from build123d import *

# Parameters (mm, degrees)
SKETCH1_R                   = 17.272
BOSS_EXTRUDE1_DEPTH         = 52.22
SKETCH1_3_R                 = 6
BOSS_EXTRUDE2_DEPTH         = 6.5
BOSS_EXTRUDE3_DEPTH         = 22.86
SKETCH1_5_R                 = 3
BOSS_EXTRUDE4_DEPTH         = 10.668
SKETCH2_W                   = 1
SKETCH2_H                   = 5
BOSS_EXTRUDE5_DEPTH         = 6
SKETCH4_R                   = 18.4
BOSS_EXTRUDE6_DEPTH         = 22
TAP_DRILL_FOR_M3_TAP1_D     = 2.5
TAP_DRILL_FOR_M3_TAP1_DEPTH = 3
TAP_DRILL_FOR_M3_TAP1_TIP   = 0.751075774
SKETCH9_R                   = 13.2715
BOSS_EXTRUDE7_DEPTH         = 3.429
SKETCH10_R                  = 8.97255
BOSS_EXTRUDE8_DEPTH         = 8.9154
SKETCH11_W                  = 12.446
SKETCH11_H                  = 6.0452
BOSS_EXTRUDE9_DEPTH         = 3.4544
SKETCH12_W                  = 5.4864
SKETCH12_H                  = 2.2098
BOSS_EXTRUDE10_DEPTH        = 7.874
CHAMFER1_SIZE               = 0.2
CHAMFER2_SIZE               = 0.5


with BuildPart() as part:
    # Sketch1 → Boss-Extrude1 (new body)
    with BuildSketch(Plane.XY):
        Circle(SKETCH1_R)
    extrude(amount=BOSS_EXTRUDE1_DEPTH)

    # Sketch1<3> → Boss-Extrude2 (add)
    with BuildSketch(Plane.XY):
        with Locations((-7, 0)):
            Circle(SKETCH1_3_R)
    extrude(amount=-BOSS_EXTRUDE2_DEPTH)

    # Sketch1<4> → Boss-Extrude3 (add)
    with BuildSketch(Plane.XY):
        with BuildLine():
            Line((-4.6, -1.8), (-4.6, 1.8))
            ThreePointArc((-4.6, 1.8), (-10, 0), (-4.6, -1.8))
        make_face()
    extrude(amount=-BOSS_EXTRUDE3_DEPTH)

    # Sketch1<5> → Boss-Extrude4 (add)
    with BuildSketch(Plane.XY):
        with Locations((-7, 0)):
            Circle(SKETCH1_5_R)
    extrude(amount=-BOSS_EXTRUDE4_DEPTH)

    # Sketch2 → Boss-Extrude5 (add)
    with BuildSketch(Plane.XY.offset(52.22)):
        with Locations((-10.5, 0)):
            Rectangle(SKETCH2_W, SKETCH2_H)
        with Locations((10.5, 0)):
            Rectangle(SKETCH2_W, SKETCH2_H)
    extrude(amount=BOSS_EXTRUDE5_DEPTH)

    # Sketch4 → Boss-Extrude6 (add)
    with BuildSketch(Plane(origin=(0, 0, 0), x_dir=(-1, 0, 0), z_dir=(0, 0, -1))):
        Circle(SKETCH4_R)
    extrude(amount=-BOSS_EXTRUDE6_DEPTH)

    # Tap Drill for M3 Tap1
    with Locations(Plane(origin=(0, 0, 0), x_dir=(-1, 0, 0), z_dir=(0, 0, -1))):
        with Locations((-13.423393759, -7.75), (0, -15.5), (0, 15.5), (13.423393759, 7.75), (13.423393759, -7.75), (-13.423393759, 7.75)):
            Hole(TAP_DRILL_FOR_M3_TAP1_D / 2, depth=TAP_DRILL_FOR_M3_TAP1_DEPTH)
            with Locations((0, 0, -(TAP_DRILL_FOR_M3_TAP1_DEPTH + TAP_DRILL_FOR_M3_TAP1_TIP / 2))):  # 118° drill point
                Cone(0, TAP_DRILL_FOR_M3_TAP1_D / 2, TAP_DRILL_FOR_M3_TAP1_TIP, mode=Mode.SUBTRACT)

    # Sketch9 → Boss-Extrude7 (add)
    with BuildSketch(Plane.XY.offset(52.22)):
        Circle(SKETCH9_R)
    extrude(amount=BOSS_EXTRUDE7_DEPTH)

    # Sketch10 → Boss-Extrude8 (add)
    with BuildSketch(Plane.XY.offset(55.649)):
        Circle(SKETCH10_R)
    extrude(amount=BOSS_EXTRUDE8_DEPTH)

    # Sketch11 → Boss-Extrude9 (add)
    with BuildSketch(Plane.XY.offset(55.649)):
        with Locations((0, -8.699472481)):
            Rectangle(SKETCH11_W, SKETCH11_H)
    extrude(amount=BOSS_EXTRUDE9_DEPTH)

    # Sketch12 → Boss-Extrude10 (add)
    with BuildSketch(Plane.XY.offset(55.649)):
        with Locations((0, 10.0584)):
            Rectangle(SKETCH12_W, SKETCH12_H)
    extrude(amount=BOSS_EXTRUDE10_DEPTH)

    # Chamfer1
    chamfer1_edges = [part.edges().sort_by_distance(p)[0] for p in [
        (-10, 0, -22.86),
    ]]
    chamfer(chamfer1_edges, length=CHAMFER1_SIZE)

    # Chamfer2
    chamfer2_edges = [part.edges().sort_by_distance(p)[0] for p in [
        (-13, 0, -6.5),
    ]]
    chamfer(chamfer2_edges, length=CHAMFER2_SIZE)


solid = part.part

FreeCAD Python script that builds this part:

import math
import FreeCAD as App
import Part
import Sketcher
Q = App.Units.Quantity


def edges_at(feature, points):
    """Names of the edges that pass closest to the given points."""
    edges = feature.Shape.Edges
    near = lambda p: min(range(len(edges)), key=lambda i: edges[i].distToShape(Part.Vertex(*p))[0])
    return sorted({f"Edge{near(p) + 1}" for p in points})

doc = App.newDocument("Part")
body = doc.addObject("PartDesign::Body", "Body")

# Sketch on XY plane
sketch1 = body.newObject("Sketcher::SketchObject", "Sketch")
sketch1.AttachmentSupport = (doc.getObject("XY_Plane"), [""])
sketch1.MapMode = "FlatFace"
sketch1.addGeometry(Part.Circle(App.Vector(0, 0, 0), App.Vector(0, 0, 1), 17), False)
sketch1.addConstraint([
    Sketcher.Constraint("Coincident", 0, 3, -1, 1),
    Sketcher.Constraint("Diameter", 0, Q("34.544 mm")),
])
pad1 = body.newObject("PartDesign::Pad", "Pad")
pad1.Profile = sketch1
pad1.Length = 52.22

# Sketch on XY plane
sketch2 = body.newObject("Sketcher::SketchObject", "Sketch001")
sketch2.AttachmentSupport = (doc.getObject("XY_Plane"), [""])
sketch2.MapMode = "FlatFace"
sketch2.addGeometry(Part.Circle(App.Vector(-7, 0, 0), App.Vector(0, 0, 1), 6), False)
sketch2.addConstraint([
    Sketcher.Constraint("PointOnObject", 0, 3, -1),
    Sketcher.Constraint("Diameter", 0, Q("12 mm")),
    Sketcher.Constraint("DistanceX", 0, 3, -1, 1, Q("7 mm")),
])
pad2 = body.newObject("PartDesign::Pad", "Pad001")
pad2.Profile = sketch2
pad2.Length = 6.5
pad2.Reversed = True

# Sketch on XY plane
sketch3 = body.newObject("Sketcher::SketchObject", "Sketch002")
sketch3.AttachmentSupport = (doc.getObject("XY_Plane"), [""])
sketch3.MapMode = "FlatFace"
sketch3.addGeometry([
    Part.LineSegment(App.Vector(-4.6, -1.8, 0), App.Vector(-4.6, 1.8, 0)),
    Part.ArcOfCircle(Part.Circle(App.Vector(-7, 0, 0), App.Vector(0, 0, 1), 3), math.radians(37), math.radians(323)),
], False)
sketch3.addConstraint([
    Sketcher.Constraint("Coincident", 0, 1, 1, 2),
    Sketcher.Constraint("Coincident", 1, 1, 0, 2),
    Sketcher.Constraint("Vertical", 0),
    Sketcher.Constraint("PointOnObject", 1, 3, -1),
    Sketcher.Constraint("Radius", 1, Q("3 mm")),
    Sketcher.Constraint("DistanceY", 0, 1, 0, 2, Q("3.6 mm")),
    Sketcher.Constraint("DistanceX", 1, 3, -1, 1, Q("7 mm")),
])
pad3 = body.newObject("PartDesign::Pad", "Pad002")
pad3.Profile = sketch3
pad3.Length = 22.86
pad3.Reversed = True

# Sketch on XY plane
sketch4 = body.newObject("Sketcher::SketchObject", "Sketch003")
sketch4.AttachmentSupport = (doc.getObject("XY_Plane"), [""])
sketch4.MapMode = "FlatFace"
sketch4.addGeometry(Part.Circle(App.Vector(-7, 0, 0), App.Vector(0, 0, 1), 3), False)
sketch4.addConstraint([
    Sketcher.Constraint("PointOnObject", 0, 3, -1),
    Sketcher.Constraint("Diameter", 0, Q("6 mm")),
    Sketcher.Constraint("DistanceX", 0, 3, -1, 1, Q("7 mm")),
])
pad4 = body.newObject("PartDesign::Pad", "Pad003")
pad4.Profile = sketch4
pad4.Length = 10.668
pad4.Reversed = True

# Sketch on XY plane
sketch5 = body.newObject("Sketcher::SketchObject", "Sketch004")
sketch5.AttachmentSupport = (doc.getObject("XY_Plane"), [""])
sketch5.MapMode = "FlatFace"
sketch5.AttachmentOffset = App.Placement(App.Vector(0, 0, 52.22), App.Rotation())
sketch5.addGeometry([
    Part.LineSegment(App.Vector(-11, 2.5, 0), App.Vector(-11, -2.5, 0)),  # 0
    Part.LineSegment(App.Vector(-11, -2.5, 0), App.Vector(-10, -2.5, 0)),  # 1
    Part.LineSegment(App.Vector(-10, -2.5, 0), App.Vector(-10, 2.5, 0)),  # 2
    Part.LineSegment(App.Vector(-10, 2.5, 0), App.Vector(-11, 2.5, 0)),  # 3
    Part.LineSegment(App.Vector(10, 2.5, 0), App.Vector(10, -2.5, 0)),  # 4
    Part.LineSegment(App.Vector(10, -2.5, 0), App.Vector(11, -2.5, 0)),  # 5
    Part.LineSegment(App.Vector(11, -2.5, 0), App.Vector(11, 2.5, 0)),  # 6
    Part.LineSegment(App.Vector(11, 2.5, 0), App.Vector(10, 2.5, 0)),  # 7
], False)
sketch5.addConstraint([
    Sketcher.Constraint("Coincident", 0, 2, 1, 1),
    Sketcher.Constraint("Coincident", 1, 2, 2, 1),
    Sketcher.Constraint("Coincident", 2, 2, 3, 1),
    Sketcher.Constraint("Coincident", 3, 2, 0, 1),
    Sketcher.Constraint("Coincident", 4, 2, 5, 1),
    Sketcher.Constraint("Coincident", 5, 2, 6, 1),
    Sketcher.Constraint("Coincident", 6, 2, 7, 1),
    Sketcher.Constraint("Coincident", 7, 2, 4, 1),
    Sketcher.Constraint("Vertical", 0),
    Sketcher.Constraint("Horizontal", 1),
    Sketcher.Constraint("Vertical", 2),
    Sketcher.Constraint("Horizontal", 3),
    Sketcher.Constraint("Vertical", 4),
    Sketcher.Constraint("Horizontal", 5),
    Sketcher.Constraint("Vertical", 6),
    Sketcher.Constraint("Horizontal", 7),
    Sketcher.Constraint("Symmetric", 2, 2, 4, 2, -1, 1),
    Sketcher.Constraint("Symmetric", 0, 2, 6, 2, -1, 1),
    Sketcher.Constraint("Horizontal", 1, 2, 4, 2),
    Sketcher.Constraint("DistanceX", 1, 1, 1, 2, Q("1 mm")),
    Sketcher.Constraint("DistanceY", 0, 2, 0, 1, Q("5 mm")),
    Sketcher.Constraint("DistanceX", 0, 2, -1, 1, Q("11 mm")),
])
pad5 = body.newObject("PartDesign::Pad", "Pad004")
pad5.Profile = sketch5
pad5.Length = 6

# Sketch on XY plane
sketch6 = body.newObject("Sketcher::SketchObject", "Sketch005")
sketch6.AttachmentSupport = (doc.getObject("XY_Plane"), [""])
sketch6.MapMode = "FlatFace"
sketch6.addGeometry(Part.Circle(App.Vector(0, 0, 0), App.Vector(0, 0, 1), 18), False)
sketch6.addConstraint([
    Sketcher.Constraint("Coincident", 0, 3, -1, 1),
    Sketcher.Constraint("Diameter", 0, Q("36.8 mm")),
])
pad6 = body.newObject("PartDesign::Pad", "Pad005")
pad6.Profile = sketch6
pad6.Length = 22

# Sketch on XY plane
sketch7 = body.newObject("Sketcher::SketchObject", "Sketch006")
sketch7.AttachmentSupport = (doc.getObject("XY_Plane"), [""])
sketch7.MapMode = "FlatFace"
sketch7.addGeometry([
    Part.Circle(App.Vector(13.4, -7.8, 0), App.Vector(0, 0, 1), 1.2),  # 0
    Part.Circle(App.Vector(0, -15.5, 0), App.Vector(0, 0, 1), 1.2),  # 1
    Part.Circle(App.Vector(0, 15.5, 0), App.Vector(0, 0, 1), 1.2),  # 2
    Part.Circle(App.Vector(-13.4, 7.8, 0), App.Vector(0, 0, 1), 1.2),  # 3
    Part.Circle(App.Vector(-13.4, -7.8, 0), App.Vector(0, 0, 1), 1.2),  # 4
    Part.Circle(App.Vector(13.4, 7.8, 0), App.Vector(0, 0, 1), 1.2),  # 5
], False)
sketch7.addConstraint([
    Sketcher.Constraint("Equal", 0, 1),
    Sketcher.Constraint("Equal", 1, 2),
    Sketcher.Constraint("Equal", 2, 3),
    Sketcher.Constraint("Equal", 3, 4),
    Sketcher.Constraint("Equal", 4, 5),
    Sketcher.Constraint("Symmetric", 1, 3, 2, 3, -1, 1),
    Sketcher.Constraint("Symmetric", 0, 3, 3, 3, -1, 1),
    Sketcher.Constraint("Symmetric", 4, 3, 5, 3, -1, 1),
    Sketcher.Constraint("Symmetric", 0, 3, 4, 3, -2),
    Sketcher.Constraint("PointOnObject", 1, 3, -2),
    Sketcher.Constraint("Diameter", 0, Q("2.5 mm")),
    Sketcher.Constraint("DistanceY", 1, 3, 2, 3, Q("31 mm")),
    Sketcher.Constraint("DistanceY", 0, 3, 3, 3, Q("15.5 mm")),
    Sketcher.Constraint("DistanceX", -1, 1, 0, 3, Q("13.423394 mm")),
])
doc.recompute()
hole = body.newObject("PartDesign::Hole", "Hole")
hole.Profile = sketch7
hole.ThreadType = "None"
hole.Diameter = 2.5
hole.DepthType = "Dimension"
hole.Depth = 3
hole.DrillPoint = "Angled"
hole.DrillPointAngle = 118
hole.Reversed = True

# Sketch on XY plane
sketch8 = body.newObject("Sketcher::SketchObject", "Sketch007")
sketch8.AttachmentSupport = (doc.getObject("XY_Plane"), [""])
sketch8.MapMode = "FlatFace"
sketch8.AttachmentOffset = App.Placement(App.Vector(0, 0, 52.22), App.Rotation())
sketch8.addGeometry(Part.Circle(App.Vector(0, 0, 0), App.Vector(0, 0, 1), 13), False)
sketch8.addConstraint([
    Sketcher.Constraint("Coincident", 0, 3, -1, 1),
    Sketcher.Constraint("Diameter", 0, Q("26.543 mm")),
])
pad7 = body.newObject("PartDesign::Pad", "Pad006")
pad7.Profile = sketch8
pad7.Length = 3.429

# Sketch on XY plane
sketch9 = body.newObject("Sketcher::SketchObject", "Sketch008")
sketch9.AttachmentSupport = (doc.getObject("XY_Plane"), [""])
sketch9.MapMode = "FlatFace"
sketch9.AttachmentOffset = App.Placement(App.Vector(0, 0, 55.649), App.Rotation())
sketch9.addGeometry(Part.Circle(App.Vector(0, 0, 0), App.Vector(0, 0, 1), 9), False)
sketch9.addConstraint([
    Sketcher.Constraint("Coincident", 0, 3, -1, 1),
    Sketcher.Constraint("Diameter", 0, Q("17.9451 mm")),
])
pad8 = body.newObject("PartDesign::Pad", "Pad007")
pad8.Profile = sketch9
pad8.Length = 8.9154

# Sketch on XY plane
sketch10 = body.newObject("Sketcher::SketchObject", "Sketch009")
sketch10.AttachmentSupport = (doc.getObject("XY_Plane"), [""])
sketch10.MapMode = "FlatFace"
sketch10.AttachmentOffset = App.Placement(App.Vector(0, 0, 55.649), App.Rotation())
sketch10.addGeometry([
    Part.LineSegment(App.Vector(-6, -6, 0), App.Vector(-6, -12, 0)),
    Part.LineSegment(App.Vector(-6, -12, 0), App.Vector(6, -12, 0)),
    Part.LineSegment(App.Vector(6, -12, 0), App.Vector(6, -6, 0)),
    Part.LineSegment(App.Vector(6, -6, 0), App.Vector(-6, -6, 0)),
], False)
sketch10.addConstraint([
    Sketcher.Constraint("Coincident", 0, 2, 1, 1),
    Sketcher.Constraint("Coincident", 1, 2, 2, 1),
    Sketcher.Constraint("Coincident", 2, 2, 3, 1),
    Sketcher.Constraint("Coincident", 3, 2, 0, 1),
    Sketcher.Constraint("Vertical", 0),
    Sketcher.Constraint("Horizontal", 1),
    Sketcher.Constraint("Vertical", 2),
    Sketcher.Constraint("Horizontal", 3),
    Sketcher.Constraint("DistanceX", 1, 1, 1, 2, Q("12.446 mm")),
    Sketcher.Constraint("DistanceY", 0, 2, 0, 1, Q("6.0452 mm")),
    Sketcher.Constraint("DistanceX", 0, 2, -1, 1, Q("6.223 mm")),
    Sketcher.Constraint("DistanceY", 0, 2, -1, 1, Q("11.722072 mm")),
])
pad9 = body.newObject("PartDesign::Pad", "Pad008")
pad9.Profile = sketch10
pad9.Length = 3.4544

# Sketch on XY plane
sketch11 = body.newObject("Sketcher::SketchObject", "Sketch010")
sketch11.AttachmentSupport = (doc.getObject("XY_Plane"), [""])
sketch11.MapMode = "FlatFace"
sketch11.AttachmentOffset = App.Placement(App.Vector(0, 0, 55.649), App.Rotation())
sketch11.addGeometry([
    Part.LineSegment(App.Vector(-2.7, 11.2, 0), App.Vector(-2.7, 9, 0)),
    Part.LineSegment(App.Vector(-2.7, 9, 0), App.Vector(2.7, 9, 0)),
    Part.LineSegment(App.Vector(2.7, 9, 0), App.Vector(2.7, 11.2, 0)),
    Part.LineSegment(App.Vector(2.7, 11.2, 0), App.Vector(-2.7, 11.2, 0)),
], False)
sketch11.addConstraint([
    Sketcher.Constraint("Coincident", 0, 2, 1, 1),
    Sketcher.Constraint("Coincident", 1, 2, 2, 1),
    Sketcher.Constraint("Coincident", 2, 2, 3, 1),
    Sketcher.Constraint("Coincident", 3, 2, 0, 1),
    Sketcher.Constraint("Vertical", 0),
    Sketcher.Constraint("Horizontal", 1),
    Sketcher.Constraint("Vertical", 2),
    Sketcher.Constraint("Horizontal", 3),
    Sketcher.Constraint("DistanceX", 1, 1, 1, 2, Q("5.4864 mm")),
    Sketcher.Constraint("DistanceY", 0, 2, 0, 1, Q("2.2098 mm")),
    Sketcher.Constraint("DistanceX", 0, 2, -1, 1, Q("2.7432 mm")),
    Sketcher.Constraint("DistanceY", -1, 1, 0, 2, Q("8.9535 mm")),
])
pad10 = body.newObject("PartDesign::Pad", "Pad009")
pad10.Profile = sketch11
pad10.Length = 7.874
doc.recompute()

chamfer = body.newObject("PartDesign::Chamfer", "Chamfer")
chamfer.Base = (pad10, edges_at(pad10, [(-10, 0, -22.86)]))
chamfer.Size = 0.2
doc.recompute()

chamfer2 = body.newObject("PartDesign::Chamfer", "Chamfer001")
chamfer2.Base = (chamfer, edges_at(chamfer, [(-13, 0, -6.5)]))
chamfer2.Size = 0.5

doc.recompute()
